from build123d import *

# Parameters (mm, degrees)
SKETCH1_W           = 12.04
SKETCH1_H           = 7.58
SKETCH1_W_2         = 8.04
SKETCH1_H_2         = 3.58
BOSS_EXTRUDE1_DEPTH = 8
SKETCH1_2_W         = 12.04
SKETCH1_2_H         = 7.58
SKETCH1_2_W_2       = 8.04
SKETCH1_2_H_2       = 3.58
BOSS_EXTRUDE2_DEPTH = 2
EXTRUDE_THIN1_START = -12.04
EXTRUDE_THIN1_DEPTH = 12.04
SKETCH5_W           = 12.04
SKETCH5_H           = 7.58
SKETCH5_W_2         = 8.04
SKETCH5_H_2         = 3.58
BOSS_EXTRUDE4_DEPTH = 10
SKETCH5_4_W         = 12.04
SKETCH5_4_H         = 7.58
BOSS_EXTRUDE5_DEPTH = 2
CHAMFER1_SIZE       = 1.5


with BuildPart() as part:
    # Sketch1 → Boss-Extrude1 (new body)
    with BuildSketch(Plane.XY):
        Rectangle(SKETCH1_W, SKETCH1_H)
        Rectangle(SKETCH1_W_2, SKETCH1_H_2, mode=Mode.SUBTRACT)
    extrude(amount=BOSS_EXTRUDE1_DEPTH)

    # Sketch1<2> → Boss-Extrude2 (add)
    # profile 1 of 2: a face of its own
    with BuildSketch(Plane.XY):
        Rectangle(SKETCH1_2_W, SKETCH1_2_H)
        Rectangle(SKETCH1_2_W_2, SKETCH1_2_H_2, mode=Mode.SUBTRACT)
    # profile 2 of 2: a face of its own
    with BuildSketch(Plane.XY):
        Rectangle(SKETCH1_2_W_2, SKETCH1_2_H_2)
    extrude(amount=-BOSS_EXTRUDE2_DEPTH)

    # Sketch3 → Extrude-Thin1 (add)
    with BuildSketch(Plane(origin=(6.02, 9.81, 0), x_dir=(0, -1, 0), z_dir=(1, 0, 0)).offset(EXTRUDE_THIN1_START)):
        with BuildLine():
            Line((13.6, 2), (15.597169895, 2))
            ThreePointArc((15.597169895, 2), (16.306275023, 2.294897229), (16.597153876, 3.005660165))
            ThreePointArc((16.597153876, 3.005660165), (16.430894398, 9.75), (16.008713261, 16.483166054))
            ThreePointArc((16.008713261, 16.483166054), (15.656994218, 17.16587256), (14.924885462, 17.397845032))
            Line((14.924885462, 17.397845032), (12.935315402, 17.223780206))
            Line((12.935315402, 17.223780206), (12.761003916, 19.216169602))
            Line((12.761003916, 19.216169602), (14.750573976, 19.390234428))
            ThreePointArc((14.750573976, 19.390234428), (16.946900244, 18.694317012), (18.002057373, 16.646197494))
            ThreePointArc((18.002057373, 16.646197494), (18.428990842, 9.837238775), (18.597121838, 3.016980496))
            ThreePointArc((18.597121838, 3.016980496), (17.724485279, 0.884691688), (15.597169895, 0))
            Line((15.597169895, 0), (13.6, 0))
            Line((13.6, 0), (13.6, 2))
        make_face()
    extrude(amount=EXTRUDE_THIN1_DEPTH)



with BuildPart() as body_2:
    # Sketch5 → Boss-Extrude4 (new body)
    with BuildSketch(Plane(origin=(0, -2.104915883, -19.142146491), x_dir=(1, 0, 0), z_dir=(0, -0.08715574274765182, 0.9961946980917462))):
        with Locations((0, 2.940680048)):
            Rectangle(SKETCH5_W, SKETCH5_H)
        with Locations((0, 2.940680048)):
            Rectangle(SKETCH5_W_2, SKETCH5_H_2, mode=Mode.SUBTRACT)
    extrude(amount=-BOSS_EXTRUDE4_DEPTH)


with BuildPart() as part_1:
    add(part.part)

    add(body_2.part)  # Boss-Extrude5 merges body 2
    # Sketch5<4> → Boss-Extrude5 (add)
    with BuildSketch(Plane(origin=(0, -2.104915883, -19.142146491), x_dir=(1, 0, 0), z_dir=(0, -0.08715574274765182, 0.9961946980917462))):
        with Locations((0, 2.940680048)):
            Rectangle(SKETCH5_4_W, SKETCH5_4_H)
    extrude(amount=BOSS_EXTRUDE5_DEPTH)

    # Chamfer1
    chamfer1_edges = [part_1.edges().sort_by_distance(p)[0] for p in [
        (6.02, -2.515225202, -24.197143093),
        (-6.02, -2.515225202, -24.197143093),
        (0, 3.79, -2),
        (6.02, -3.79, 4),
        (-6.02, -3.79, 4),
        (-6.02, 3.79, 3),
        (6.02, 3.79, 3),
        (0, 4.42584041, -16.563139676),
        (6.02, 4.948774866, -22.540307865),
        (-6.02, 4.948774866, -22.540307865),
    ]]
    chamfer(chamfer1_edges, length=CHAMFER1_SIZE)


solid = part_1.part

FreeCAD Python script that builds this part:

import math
import FreeCAD as App
import Part
import Sketcher

V = App.Vector
Q = App.Units.Quantity


def edges_at(feature, points):
    """Names of the edges that pass closest to the given points."""
    edges = feature.Shape.Edges
    near = lambda p: min(range(len(edges)), key=lambda i: edges[i].distToShape(Part.Vertex(*p))[0])
    return sorted({f"Edge{near(p) + 1}" for p in points})

doc = App.newDocument("Part")
body = doc.addObject("PartDesign::Body", "Body")

sketch1 = body.newObject("Sketcher::SketchObject", "Sketch")
sketch1.AttachmentSupport = (doc.getObject("XY_Plane"), [""])
sketch1.MapMode = "FlatFace"
sketch1.addGeometry([
    Part.LineSegment(V(-6.02, 3.79, 0), V(-6.02, -3.79, 0)),
    Part.LineSegment(V(-6.02, -3.79, 0), V(6.02, -3.79, 0)),
    Part.LineSegment(V(6.02, -3.79, 0), V(6.02, 3.79, 0)),
    Part.LineSegment(V(6.02, 3.79, 0), V(-6.02, 3.79, 0)),
    Part.LineSegment(V(4.02, -1.79, 0), V(-4.02, -1.79, 0)),
    Part.LineSegment(V(-4.02, -1.79, 0), V(-4.02, 1.79, 0)),
    Part.LineSegment(V(-4.02, 1.79, 0), V(4.02, 1.79, 0)),
    Part.LineSegment(V(4.02, 1.79, 0), V(4.02, -1.79, 0)),
], False)
sketch1.addConstraint([
    Sketcher.Constraint("Coincident", 0, 2, 1, 1),
    Sketcher.Constraint("Coincident", 1, 2, 2, 1),
    Sketcher.Constraint("Coincident", 2, 2, 3, 1),
    Sketcher.Constraint("Coincident", 3, 2, 0, 1),
    Sketcher.Constraint("Coincident", 4, 2, 5, 1),
    Sketcher.Constraint("Coincident", 5, 2, 6, 1),
    Sketcher.Constraint("Coincident", 6, 2, 7, 1),
    Sketcher.Constraint("Coincident", 7, 2, 4, 1),
    Sketcher.Constraint("Vertical", 0),
    Sketcher.Constraint("Horizontal", 1),
    Sketcher.Constraint("Vertical", 2),
    Sketcher.Constraint("Horizontal", 3),
    Sketcher.Constraint("Horizontal", 4),
    Sketcher.Constraint("Vertical", 5),
    Sketcher.Constraint("Horizontal", 6),
    Sketcher.Constraint("Vertical", 7),
    Sketcher.Constraint("Symmetric", 0, 2, 2, 2, -1, 1),
    Sketcher.Constraint("Symmetric", 4, 2, 6, 2, -1, 1),
    Sketcher.Constraint("DistanceX", 0, 2, 4, 2, Q("2 mm")),
    Sketcher.Constraint("DistanceY", 0, 2, 4, 2, Q("2 mm")),
    Sketcher.Constraint("DistanceX", 1, 1, 1, 2, Q("12.04 mm")),
    Sketcher.Constraint("DistanceY", 0, 2, 0, 1, Q("7.58 mm")),
])
pad1 = body.newObject("PartDesign::Pad", "Pad")
pad1.Profile = sketch1
pad1.Length = 8

sketch2 = body.newObject("Sketcher::SketchObject", "Sketch001")
sketch2.AttachmentSupport = (doc.getObject("XY_Plane"), [""])
sketch2.MapMode = "FlatFace"
sketch2.addGeometry([
    Part.LineSegment(V(-6.02, 3.79, 0), V(-6.02, -3.79, 0)),
    Part.LineSegment(V(-6.02, -3.79, 0), V(6.02, -3.79, 0)),
    Part.LineSegment(V(6.02, -3.79, 0), V(6.02, 3.79, 0)),
    Part.LineSegment(V(6.02, 3.79, 0), V(-6.02, 3.79, 0)),
], False)
sketch2.addConstraint([
    Sketcher.Constraint("Coincident", 0, 2, 1, 1),
    Sketcher.Constraint("Coincident", 1, 2, 2, 1),
    Sketcher.Constraint("Coincident", 2, 2, 3, 1),
    Sketcher.Constraint("Coincident", 3, 2, 0, 1),
    Sketcher.Constraint("Vertical", 0),
    Sketcher.Constraint("Horizontal", 1),
    Sketcher.Constraint("Vertical", 2),
    Sketcher.Constraint("Horizontal", 3),
    Sketcher.Constraint("Symmetric", 0, 2, 2, 2, -1, 1),
    Sketcher.Constraint("DistanceX", 1, 1, 1, 2, Q("12.04 mm")),
    Sketcher.Constraint("DistanceY", 0, 2, 0, 1, Q("7.58 mm")),
])
pad2 = body.newObject("PartDesign::Pad", "Pad001")
pad2.Profile = sketch2
pad2.Length = 2
pad2.Reversed = True

sketch3 = body.newObject("Sketcher::SketchObject", "Sketch002")
sketch3.AttachmentSupport = (doc.getObject("YZ_Plane"), [""])
sketch3.MapMode = "FlatFace"
sketch3.AttachmentOffset = App.Placement(V(0, 0, -6.02), App.Rotation())
sketch3.addGeometry([
    Part.LineSegment(V(-5.78717, -2, 0), V(-3.79, -2, 0)),
    Part.LineSegment(V(-3.79, -2, 0), V(-3.79, 0, 0)),
    Part.LineSegment(V(-3.79, 0, 0), V(-5.78717, 0, 0)),
    Part.ArcOfCircle(Part.Circle(V(-5.78717, -3, 0), V(0, 0, 1), 3), math.radians(90), math.radians(180.324305)),
    Part.ArcOfCircle(Part.Circle(V(170.883288, -2, 0), V(0, 0, 1), 179.673288), math.radians(-179.675695), math.radians(-175.324305)),
    Part.ArcOfCircle(Part.Circle(V(-5.202041, -16.40165, 0), V(0, 0, 1), 3), math.radians(-175.324305), math.radians(-85)),
    Part.LineSegment(V(-4.940574, -19.390234, 0), V(-2.951004, -19.21617, 0)),
    Part.LineSegment(V(-2.951004, -19.21617, 0), V(-3.125315, -17.22378, 0)),
    Part.LineSegment(V(-3.125315, -17.22378, 0), V(-5.114885, -17.397845, 0)),
    Part.ArcOfCircle(Part.Circle(V(-5.202041, -16.40165, 0), V(0, 0, 1), 1), math.radians(-175.324305), math.radians(-85)),
    Part.ArcOfCircle(Part.Circle(V(170.883289, -2, 0), V(0, 0, 1), 177.673289), math.radians(-179.675695), math.radians(-175.324305)),
    Part.ArcOfCircle(Part.Circle(V(-5.78717, -3, 0), V(0, 0, 1), 1), math.radians(90), math.radians(180.324305)),
], False)
sketch3.addConstraint([
    Sketcher.Constraint("Coincident", 0, 2, 1, 1),
    Sketcher.Constraint("Coincident", 1, 2, 2, 1),
    Sketcher.Constraint("Tangent", 2, 2, 3, 1),
    Sketcher.Constraint("Tangent", 3, 2, 4, 1),
    Sketcher.Constraint("Tangent", 4, 2, 5, 1),
    Sketcher.Constraint("Tangent", 5, 2, 6, 1),
    Sketcher.Constraint("Coincident", 6, 2, 7, 1),
    Sketcher.Constraint("Coincident", 7, 2, 8, 1),
    Sketcher.Constraint("Tangent", 8, 2, 9, 2),
    Sketcher.Constraint("Tangent", 9, 1, 10, 2),
    Sketcher.Constraint("Tangent", 10, 1, 11, 2),
    Sketcher.Constraint("Tangent", 11, 1, 0, 1),
    Sketcher.Constraint("Horizontal", 0),
    Sketcher.Constraint("Vertical", 1),
    Sketcher.Constraint("Horizontal", 2),
    Sketcher.Constraint("Coincident", 9, 3, 5, 3),
    Sketcher.Constraint("Coincident", 10, 3, 4, 3),
    Sketcher.Constraint("Coincident", 11, 3, 3, 3),
    Sketcher.Constraint("Equal", 3, 5),
    Sketcher.Constraint("PointOnObject", 1, 2, -1),
    Sketcher.Constraint("Perpendicular", 6, 7),
    Sketcher.Constraint("Perpendicular", 7, 8),
    Sketcher.Constraint("Horizontal", 10, 3, 0, 2),
    Sketcher.Constraint("Radius", 3, Q("3 mm")),
    Sketcher.Constraint("Radius", 9, Q("1 mm")),
    Sketcher.Constraint("Angle", 6, Q("5 deg")),
    Sketcher.Constraint("DistanceX", 0, 2, -1, 1, Q("3.79 mm")),
    Sketcher.Constraint("Radius", 4, Q("179.673288 mm")),
    Sketcher.Constraint("DistanceX", 0, 1, 0, 2, Q("1.99717 mm")),
    Sketcher.Constraint("Distance", 6, Q("1.99717 mm")),
    Sketcher.Constraint("DistanceX", 5, 3, -1, 1, Q("5.202041 mm")),
])
pad3 = body.newObject("PartDesign::Pad", "Pad002")
pad3.Profile = sketch3
pad3.Length = 12.04
body2 = doc.addObject("PartDesign::Body", "Body001")

sketch4 = body2.newObject("Sketcher::SketchObject", "Sketch003")
sketch4.Placement = App.Placement(V(0, -2.104916, -19.142146), App.Rotation(V(1, 0, 0), V(0, 0.996194698, 0.087155743), V(0, -0.087155743, 0.996194698), "ZXY"))
sketch4.addGeometry([
    Part.LineSegment(V(-6.02, 6.73068, 0), V(-6.02, -0.84932, 0)),
    Part.LineSegment(V(-6.02, -0.84932, 0), V(6.02, -0.84932, 0)),
    Part.LineSegment(V(6.02, -0.84932, 0), V(6.02, 6.73068, 0)),
    Part.LineSegment(V(6.02, 6.73068, 0), V(-6.02, 6.73068, 0)),
    Part.LineSegment(V(4.02, 1.15068, 0), V(-4.02, 1.15068, 0)),
    Part.LineSegment(V(-4.02, 1.15068, 0), V(-4.02, 4.73068, 0)),
    Part.LineSegment(V(-4.02, 4.73068, 0), V(4.02, 4.73068, 0)),
    Part.LineSegment(V(4.02, 4.73068, 0), V(4.02, 1.15068, 0)),
], False)
sketch4.addConstraint([
    Sketcher.Constraint("Coincident", 0, 2, 1, 1),
    Sketcher.Constraint("Coincident", 1, 2, 2, 1),
    Sketcher.Constraint("Coincident", 2, 2, 3, 1),
    Sketcher.Constraint("Coincident", 3, 2, 0, 1),
    Sketcher.Constraint("Coincident", 4, 2, 5, 1),
    Sketcher.Constraint("Coincident", 5, 2, 6, 1),
    Sketcher.Constraint("Coincident", 6, 2, 7, 1),
    Sketcher.Constraint("Coincident", 7, 2, 4, 1),
    Sketcher.Constraint("Vertical", 0),
    Sketcher.Constraint("Horizontal", 1),
    Sketcher.Constraint("Vertical", 2),
    Sketcher.Constraint("Horizontal", 3),
    Sketcher.Constraint("Horizontal", 4),
    Sketcher.Constraint("Vertical", 5),
    Sketcher.Constraint("Horizontal", 6),
    Sketcher.Constraint("Vertical", 7),
    Sketcher.Constraint("DistanceX", 0, 2, 4, 2, Q("2 mm")),
    Sketcher.Constraint("DistanceY", 0, 2, 4, 2, Q("2 mm")),
    Sketcher.Constraint("DistanceY", 5, 2, 3, 2, Q("2 mm")),
    Sketcher.Constraint("DistanceX", 6, 2, 2, 2, Q("2 mm")),
    Sketcher.Constraint("DistanceX", 1, 1, 1, 2, Q("12.04 mm")),
    Sketcher.Constraint("DistanceY", 0, 2, 0, 1, Q("7.58 mm")),
    Sketcher.Constraint("DistanceX", 0, 2, -1, 1, Q("6.02 mm")),
    Sketcher.Constraint("DistanceY", 0, 2, -1, 1, Q("0.84932 mm")),
])
pad4 = body2.newObject("PartDesign::Pad", "Pad003")
pad4.Profile = sketch4
pad4.Length = 10
pad4.Reversed = True
body.AllowCompound = True
doc.recompute()

boolean = body.newObject("PartDesign::Boolean", "Boolean")
boolean.Type = "Fuse"
boolean.addObjects([body2])

sketch5 = body.newObject("Sketcher::SketchObject", "Sketch004")
sketch5.Placement = App.Placement(V(0, -2.104916, -19.142146), App.Rotation(V(1, 0, 0), V(0, 0.996194698, 0.087155743), V(0, -0.087155743, 0.996194698), "ZXY"))
sketch5.addGeometry([
    Part.LineSegment(V(-6.02, 6.73068, 0), V(-6.02, -0.84932, 0)),
    Part.LineSegment(V(-6.02, -0.84932, 0), V(6.02, -0.84932, 0)),
    Part.LineSegment(V(6.02, -0.84932, 0), V(6.02, 6.73068, 0)),
    Part.LineSegment(V(6.02, 6.73068, 0), V(-6.02, 6.73068, 0)),
], False)
sketch5.addConstraint([
    Sketcher.Constraint("Coincident", 0, 2, 1, 1),
    Sketcher.Constraint("Coincident", 1, 2, 2, 1),
    Sketcher.Constraint("Coincident", 2, 2, 3, 1),
    Sketcher.Constraint("Coincident", 3, 2, 0, 1),
    Sketcher.Constraint("Vertical", 0),
    Sketcher.Constraint("Horizontal", 1),
    Sketcher.Constraint("Vertical", 2),
    Sketcher.Constraint("Horizontal", 3),
    Sketcher.Constraint("DistanceX", 1, 1, 1, 2, Q("12.04 mm")),
    Sketcher.Constraint("DistanceY", 0, 2, 0, 1, Q("7.58 mm")),
    Sketcher.Constraint("DistanceX", 0, 2, -1, 1, Q("6.02 mm")),
    Sketcher.Constraint("DistanceY", 0, 2, -1, 1, Q("0.84932 mm")),
])
pad5 = body.newObject("PartDesign::Pad", "Pad004")
pad5.Profile = sketch5
pad5.Length = 2
doc.recompute()

chamfer = body.newObject("PartDesign::Chamfer", "Chamfer")
chamfer.Base = (pad5, edges_at(pad5, [
    (6.02, -2.515, -24.197),
    (-6.02, -2.515, -24.197),
    (0, 3.79, -2),
    (6.02, -3.79, 4),
    (-6.02, -3.79, 4),
    (-6.02, 3.79, 3),
    (6.02, 3.79, 3),
    (0, 4.426, -16.563),
    (6.02, 4.949, -22.54),
    (-6.02, 4.949, -22.54),
]))
chamfer.Size = 1.5

doc.recompute()
